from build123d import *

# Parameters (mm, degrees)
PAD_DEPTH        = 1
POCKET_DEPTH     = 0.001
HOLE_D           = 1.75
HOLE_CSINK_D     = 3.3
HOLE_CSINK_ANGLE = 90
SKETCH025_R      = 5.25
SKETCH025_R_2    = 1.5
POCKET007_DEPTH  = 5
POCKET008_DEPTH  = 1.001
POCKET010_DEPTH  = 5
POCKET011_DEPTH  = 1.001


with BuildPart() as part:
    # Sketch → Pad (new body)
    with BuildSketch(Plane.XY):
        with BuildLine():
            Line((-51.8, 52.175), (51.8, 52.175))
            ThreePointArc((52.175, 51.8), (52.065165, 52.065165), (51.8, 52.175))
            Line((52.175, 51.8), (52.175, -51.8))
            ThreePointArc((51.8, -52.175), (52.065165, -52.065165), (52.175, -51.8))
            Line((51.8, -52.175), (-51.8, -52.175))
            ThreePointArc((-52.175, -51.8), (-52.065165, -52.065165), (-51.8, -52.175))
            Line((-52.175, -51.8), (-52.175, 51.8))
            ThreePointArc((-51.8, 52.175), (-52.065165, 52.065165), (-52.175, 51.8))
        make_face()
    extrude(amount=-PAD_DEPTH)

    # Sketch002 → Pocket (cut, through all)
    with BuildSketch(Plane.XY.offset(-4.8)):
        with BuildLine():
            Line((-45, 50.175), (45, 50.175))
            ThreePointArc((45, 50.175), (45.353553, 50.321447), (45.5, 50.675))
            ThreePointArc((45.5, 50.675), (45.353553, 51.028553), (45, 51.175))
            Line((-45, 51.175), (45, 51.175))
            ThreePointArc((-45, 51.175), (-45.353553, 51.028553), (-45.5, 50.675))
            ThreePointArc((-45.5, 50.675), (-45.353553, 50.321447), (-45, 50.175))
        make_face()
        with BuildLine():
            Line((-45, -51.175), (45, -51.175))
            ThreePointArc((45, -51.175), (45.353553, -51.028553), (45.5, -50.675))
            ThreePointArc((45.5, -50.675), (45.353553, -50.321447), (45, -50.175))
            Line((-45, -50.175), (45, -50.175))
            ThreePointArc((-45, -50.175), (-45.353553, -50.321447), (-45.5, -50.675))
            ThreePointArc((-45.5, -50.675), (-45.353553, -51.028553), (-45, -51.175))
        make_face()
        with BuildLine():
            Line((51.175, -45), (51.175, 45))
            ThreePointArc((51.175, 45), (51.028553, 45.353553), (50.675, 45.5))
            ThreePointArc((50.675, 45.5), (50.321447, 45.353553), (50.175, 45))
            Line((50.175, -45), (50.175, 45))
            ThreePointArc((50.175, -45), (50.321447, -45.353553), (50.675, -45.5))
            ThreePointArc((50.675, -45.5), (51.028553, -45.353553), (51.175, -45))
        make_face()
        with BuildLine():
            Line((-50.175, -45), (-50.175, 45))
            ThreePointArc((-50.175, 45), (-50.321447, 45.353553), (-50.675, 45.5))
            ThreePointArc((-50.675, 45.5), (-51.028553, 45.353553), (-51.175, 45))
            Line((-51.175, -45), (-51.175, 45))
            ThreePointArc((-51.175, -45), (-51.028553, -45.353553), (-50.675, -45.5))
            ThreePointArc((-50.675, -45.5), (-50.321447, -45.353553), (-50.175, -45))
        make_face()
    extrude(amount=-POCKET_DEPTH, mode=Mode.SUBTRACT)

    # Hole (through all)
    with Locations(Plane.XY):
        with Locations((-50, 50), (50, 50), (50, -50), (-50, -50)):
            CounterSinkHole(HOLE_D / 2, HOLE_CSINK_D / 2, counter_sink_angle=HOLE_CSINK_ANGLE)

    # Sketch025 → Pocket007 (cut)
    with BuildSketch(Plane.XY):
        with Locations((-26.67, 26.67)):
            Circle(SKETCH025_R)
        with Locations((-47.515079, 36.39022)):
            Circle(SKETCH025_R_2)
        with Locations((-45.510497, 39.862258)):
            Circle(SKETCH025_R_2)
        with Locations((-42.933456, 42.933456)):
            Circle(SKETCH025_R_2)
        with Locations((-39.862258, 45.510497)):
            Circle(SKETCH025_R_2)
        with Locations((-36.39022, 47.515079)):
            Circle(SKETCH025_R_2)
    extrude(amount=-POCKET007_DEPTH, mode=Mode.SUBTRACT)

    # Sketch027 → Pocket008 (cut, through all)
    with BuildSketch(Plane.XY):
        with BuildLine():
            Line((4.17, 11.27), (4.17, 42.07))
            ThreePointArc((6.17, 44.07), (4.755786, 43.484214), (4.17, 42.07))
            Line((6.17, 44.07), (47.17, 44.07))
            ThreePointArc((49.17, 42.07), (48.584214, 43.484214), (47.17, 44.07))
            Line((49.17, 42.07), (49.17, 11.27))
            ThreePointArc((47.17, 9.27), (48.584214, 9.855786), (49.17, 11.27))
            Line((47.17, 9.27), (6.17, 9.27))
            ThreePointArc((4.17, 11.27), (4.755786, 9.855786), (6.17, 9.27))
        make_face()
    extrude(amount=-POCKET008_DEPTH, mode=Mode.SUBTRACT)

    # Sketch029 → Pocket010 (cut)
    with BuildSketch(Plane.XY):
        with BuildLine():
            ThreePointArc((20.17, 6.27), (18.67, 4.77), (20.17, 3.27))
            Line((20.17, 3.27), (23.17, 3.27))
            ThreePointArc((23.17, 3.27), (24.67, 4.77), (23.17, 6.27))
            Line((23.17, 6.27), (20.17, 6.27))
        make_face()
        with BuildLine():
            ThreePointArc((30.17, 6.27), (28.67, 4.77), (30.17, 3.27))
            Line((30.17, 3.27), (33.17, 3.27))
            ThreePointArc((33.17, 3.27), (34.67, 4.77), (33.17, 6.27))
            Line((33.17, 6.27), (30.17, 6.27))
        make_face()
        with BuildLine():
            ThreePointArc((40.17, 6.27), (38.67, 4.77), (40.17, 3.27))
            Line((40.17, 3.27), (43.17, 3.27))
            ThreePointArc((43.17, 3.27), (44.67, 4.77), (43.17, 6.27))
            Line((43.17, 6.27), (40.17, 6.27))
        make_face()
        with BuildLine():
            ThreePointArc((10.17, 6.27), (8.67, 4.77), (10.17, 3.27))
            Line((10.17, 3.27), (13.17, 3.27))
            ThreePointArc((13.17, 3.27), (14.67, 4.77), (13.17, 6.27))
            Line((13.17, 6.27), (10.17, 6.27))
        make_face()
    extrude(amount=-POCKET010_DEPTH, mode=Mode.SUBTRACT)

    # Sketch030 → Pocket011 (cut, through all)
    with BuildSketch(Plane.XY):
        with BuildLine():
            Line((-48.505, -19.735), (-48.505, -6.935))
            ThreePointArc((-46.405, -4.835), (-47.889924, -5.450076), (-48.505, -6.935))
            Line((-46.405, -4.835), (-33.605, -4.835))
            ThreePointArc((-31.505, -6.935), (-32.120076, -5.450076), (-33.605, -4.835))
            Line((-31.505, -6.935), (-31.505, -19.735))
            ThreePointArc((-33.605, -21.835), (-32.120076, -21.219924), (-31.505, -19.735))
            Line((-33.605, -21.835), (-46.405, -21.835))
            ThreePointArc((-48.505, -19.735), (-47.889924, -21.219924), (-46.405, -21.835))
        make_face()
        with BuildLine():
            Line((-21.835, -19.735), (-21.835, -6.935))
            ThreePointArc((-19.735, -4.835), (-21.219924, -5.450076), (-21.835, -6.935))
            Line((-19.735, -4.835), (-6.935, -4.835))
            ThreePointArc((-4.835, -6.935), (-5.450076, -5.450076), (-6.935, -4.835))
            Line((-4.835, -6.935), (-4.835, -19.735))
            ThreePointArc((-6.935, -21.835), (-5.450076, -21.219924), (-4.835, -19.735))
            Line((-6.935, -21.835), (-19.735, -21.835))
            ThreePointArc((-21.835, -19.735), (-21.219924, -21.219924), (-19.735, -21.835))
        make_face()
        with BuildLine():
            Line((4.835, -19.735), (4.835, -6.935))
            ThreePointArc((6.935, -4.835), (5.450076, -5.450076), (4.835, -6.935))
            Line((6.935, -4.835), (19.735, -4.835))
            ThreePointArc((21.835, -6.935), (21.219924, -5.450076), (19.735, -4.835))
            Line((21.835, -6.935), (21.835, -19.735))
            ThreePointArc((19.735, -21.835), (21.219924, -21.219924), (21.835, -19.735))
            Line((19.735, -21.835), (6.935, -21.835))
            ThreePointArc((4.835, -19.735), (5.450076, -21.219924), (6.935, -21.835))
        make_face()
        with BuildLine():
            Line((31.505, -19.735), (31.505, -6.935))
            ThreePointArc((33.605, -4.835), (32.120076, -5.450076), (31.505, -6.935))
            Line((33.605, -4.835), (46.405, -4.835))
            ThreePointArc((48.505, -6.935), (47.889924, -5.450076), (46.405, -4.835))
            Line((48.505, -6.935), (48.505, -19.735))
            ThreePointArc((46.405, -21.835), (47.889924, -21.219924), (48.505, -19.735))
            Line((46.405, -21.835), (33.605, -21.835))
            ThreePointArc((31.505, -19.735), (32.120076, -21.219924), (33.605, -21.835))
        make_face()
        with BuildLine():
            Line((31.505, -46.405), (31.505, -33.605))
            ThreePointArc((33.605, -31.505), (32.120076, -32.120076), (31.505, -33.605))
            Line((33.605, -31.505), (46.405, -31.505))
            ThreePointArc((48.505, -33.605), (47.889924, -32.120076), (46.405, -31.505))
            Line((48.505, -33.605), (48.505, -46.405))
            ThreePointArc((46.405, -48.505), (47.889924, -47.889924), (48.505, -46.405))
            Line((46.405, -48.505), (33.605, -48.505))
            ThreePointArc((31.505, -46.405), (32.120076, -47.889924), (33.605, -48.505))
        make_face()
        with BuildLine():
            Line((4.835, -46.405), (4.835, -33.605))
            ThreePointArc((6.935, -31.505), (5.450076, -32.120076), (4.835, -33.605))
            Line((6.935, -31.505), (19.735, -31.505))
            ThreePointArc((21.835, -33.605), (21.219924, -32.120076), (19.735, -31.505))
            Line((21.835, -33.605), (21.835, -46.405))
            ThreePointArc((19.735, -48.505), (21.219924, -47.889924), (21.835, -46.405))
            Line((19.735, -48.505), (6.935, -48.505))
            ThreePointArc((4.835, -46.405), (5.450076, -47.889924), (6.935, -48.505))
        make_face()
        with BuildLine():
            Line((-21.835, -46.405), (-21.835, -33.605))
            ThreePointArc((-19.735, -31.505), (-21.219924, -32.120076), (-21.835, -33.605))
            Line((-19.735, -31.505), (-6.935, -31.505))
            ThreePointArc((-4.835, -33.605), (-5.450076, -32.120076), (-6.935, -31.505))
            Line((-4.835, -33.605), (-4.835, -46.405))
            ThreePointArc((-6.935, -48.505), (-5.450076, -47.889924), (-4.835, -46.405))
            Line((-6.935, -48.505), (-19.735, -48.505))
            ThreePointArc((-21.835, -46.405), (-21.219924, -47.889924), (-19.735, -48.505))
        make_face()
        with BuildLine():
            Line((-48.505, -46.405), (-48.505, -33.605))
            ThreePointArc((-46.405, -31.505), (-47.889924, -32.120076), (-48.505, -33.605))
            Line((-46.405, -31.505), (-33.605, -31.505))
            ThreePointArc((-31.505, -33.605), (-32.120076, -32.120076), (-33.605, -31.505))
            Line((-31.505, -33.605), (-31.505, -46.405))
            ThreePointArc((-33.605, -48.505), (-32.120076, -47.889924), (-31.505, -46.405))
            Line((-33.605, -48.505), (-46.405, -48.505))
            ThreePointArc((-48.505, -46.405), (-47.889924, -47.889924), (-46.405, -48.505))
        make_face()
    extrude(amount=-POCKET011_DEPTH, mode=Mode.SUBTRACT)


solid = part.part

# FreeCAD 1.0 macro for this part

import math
import FreeCAD as App
import Part
import Sketcher
Q = App.Units.Quantity

doc = App.newDocument("Part")
params = doc.addObject("Spreadsheet::Sheet", "Params")
for row, (alias, value) in enumerate([
    ("sketch1_width", "103.6 mm"),
    ("pad1_length", "1 mm"),
    ("sketch2_radius", "0.500001 mm"),
    ("sketch2_width", "90 mm"),
    ("sketch3_diameter", "1.75 mm"),
    ("hole_diameter", "1.75 mm"),
    ("hole_csink_diameter", "3.3 mm"),
    ("sketch4_diameter", "3 mm"),
    ("sketch4_diameter2", "10.5 mm"),
    ("pocket2_length", "5 mm"),
    ("sketch5_radius", "1.999999 mm"),
    ("sketch5_width", "41 mm"),
    ("sketch5_height", "30.8 mm"),
    ("sketch6_radius", "1.5 mm"),
    ("sketch6_width", "3 mm"),
    ("pocket4_length", "5 mm"),
    ("sketch7_radius", "2.100001 mm"),
    ("sketch7_width", "12.8 mm"),
], start=1):
    params.set(f"A{row}", alias)
    params.set(f"B{row}", "=" + value)
    params.setAlias(f"B{row}", alias)

body = doc.addObject("PartDesign::Body", "Body")

# Sketch on XY plane
sketch1 = body.newObject("Sketcher::SketchObject", "Sketch")
sketch1.AttachmentSupport = (doc.getObject("XY_Plane"), [""])
sketch1.MapMode = "FlatFace"
sketch1.addGeometry([
    Part.LineSegment(App.Vector(51.8, 52.17, 0), App.Vector(-51.8, 52.17, 0)),  # 0
    Part.ArcOfCircle(Part.Circle(App.Vector(-51.8, 51.8, 0), App.Vector(0, 0, 1), 0.38), math.radians(90), math.radians(180)),  # 1
    Part.LineSegment(App.Vector(-52.17, 51.8, 0), App.Vector(-52.17, -51.8, 0)),  # 2
    Part.ArcOfCircle(Part.Circle(App.Vector(-51.8, -51.8, 0), App.Vector(0, 0, 1), 0.38), math.radians(-180), math.radians(-90)),  # 3
    Part.LineSegment(App.Vector(-51.8, -52.17, 0), App.Vector(51.8, -52.17, 0)),  # 4
    Part.ArcOfCircle(Part.Circle(App.Vector(51.8, -51.8, 0), App.Vector(0, 0, 1), 0.38), math.radians(-90), math.radians(0)),  # 5
    Part.LineSegment(App.Vector(52.17, -51.8, 0), App.Vector(52.17, 51.8, 0)),  # 6
    Part.ArcOfCircle(Part.Circle(App.Vector(51.8, 51.8, 0), App.Vector(0, 0, 1), 0.38), math.radians(0), math.radians(90)),  # 7
], False)
sketch1.addConstraint([
    Sketcher.Constraint("Tangent", 0, 2, 1, 1),
    Sketcher.Constraint("Tangent", 1, 2, 2, 1),
    Sketcher.Constraint("Tangent", 2, 2, 3, 1),
    Sketcher.Constraint("Tangent", 3, 2, 4, 1),
    Sketcher.Constraint("Tangent", 4, 2, 5, 1),
    Sketcher.Constraint("Tangent", 5, 2, 6, 1),
    Sketcher.Constraint("Tangent", 6, 2, 7, 1),
    Sketcher.Constraint("Tangent", 7, 2, 0, 1),
    Sketcher.Constraint("Horizontal", 0),
    Sketcher.Constraint("Vertical", 2),
    Sketcher.Constraint("Horizontal", 4),
    Sketcher.Constraint("Vertical", 6),
    Sketcher.Constraint("Equal", 1, 3),
    Sketcher.Constraint("Equal", 3, 5),
    Sketcher.Constraint("Equal", 5, 7),
    Sketcher.Constraint("Symmetric", 1, 3, 5, 3, -1, 1),
    Sketcher.Constraint("Equal", 4, 2),
    Sketcher.Constraint("DistanceX", 0, 2, 0, 1, Q("103.6 mm")),
    Sketcher.Constraint("Radius", 1, Q("0.375 mm")),
])
sketch1.setExpression("Constraints[17]", "Params.sketch1_width")
pad1 = body.newObject("PartDesign::Pad", "Pad")
pad1.Profile = sketch1
pad1.setExpression("Length", "Params.pad1_length")
pad1.Reversed = True

# Sketch on XY plane
sketch2 = body.newObject("Sketcher::SketchObject", "Sketch001")
sketch2.AttachmentSupport = (doc.getObject("XY_Plane"), [""])
sketch2.MapMode = "FlatFace"
sketch2.AttachmentOffset = App.Placement(App.Vector(0, 0, -4.8), App.Rotation())
sketch2.addGeometry([
    Part.LineSegment(App.Vector(-45, 50.2, 0), App.Vector(45, 50.2, 0)),  # 0
    Part.ArcOfCircle(Part.Circle(App.Vector(45, 50.7, 0), App.Vector(0, 0, 1), 0.5), math.radians(-90), math.radians(0)),  # 1
    Part.ArcOfCircle(Part.Circle(App.Vector(45, 50.7, 0), App.Vector(0, 0, 1), 0.5), math.radians(0), math.radians(90)),  # 2
    Part.LineSegment(App.Vector(45, 51.2, 0), App.Vector(-45, 51.2, 0)),  # 3
    Part.ArcOfCircle(Part.Circle(App.Vector(-45, 50.7, 0), App.Vector(0, 0, 1), 0.5), math.radians(90), math.radians(180)),  # 4
    Part.ArcOfCircle(Part.Circle(App.Vector(-45, 50.7, 0), App.Vector(0, 0, 1), 0.5), math.radians(-180), math.radians(-90)),  # 5
    Part.LineSegment(App.Vector(-45, -51.2, 0), App.Vector(45, -51.2, 0)),  # 6
    Part.ArcOfCircle(Part.Circle(App.Vector(45, -50.7, 0), App.Vector(0, 0, 1), 0.5), math.radians(-90), math.radians(0)),  # 7
    Part.ArcOfCircle(Part.Circle(App.Vector(45, -50.7, 0), App.Vector(0, 0, 1), 0.5), math.radians(0), math.radians(90)),  # 8
    Part.LineSegment(App.Vector(45, -50.2, 0), App.Vector(-45, -50.2, 0)),  # 9
    Part.ArcOfCircle(Part.Circle(App.Vector(-45, -50.7, 0), App.Vector(0, 0, 1), 0.5), math.radians(90), math.radians(180)),  # 10
    Part.ArcOfCircle(Part.Circle(App.Vector(-45, -50.7, 0), App.Vector(0, 0, 1), 0.5), math.radians(-180), math.radians(-90)),  # 11
    Part.LineSegment(App.Vector(51.2, -45, 0), App.Vector(51.2, 45, 0)),  # 12
    Part.ArcOfCircle(Part.Circle(App.Vector(50.7, 45, 0), App.Vector(0, 0, 1), 0.5), math.radians(0), math.radians(90)),  # 13
    Part.ArcOfCircle(Part.Circle(App.Vector(50.7, 45, 0), App.Vector(0, 0, 1), 0.5), math.radians(90), math.radians(180)),  # 14
    Part.LineSegment(App.Vector(50.2, 45, 0), App.Vector(50.2, -45, 0)),  # 15
    Part.ArcOfCircle(Part.Circle(App.Vector(50.7, -45, 0), App.Vector(0, 0, 1), 0.5), math.radians(-180), math.radians(-90)),  # 16
    Part.ArcOfCircle(Part.Circle(App.Vector(50.7, -45, 0), App.Vector(0, 0, 1), 0.5), math.radians(-90), math.radians(0)),  # 17
    Part.LineSegment(App.Vector(-50.2, -45, 0), App.Vector(-50.2, 45, 0)),  # 18
    Part.ArcOfCircle(Part.Circle(App.Vector(-50.7, 45, 0), App.Vector(0, 0, 1), 0.5), math.radians(0), math.radians(90)),  # 19
    Part.ArcOfCircle(Part.Circle(App.Vector(-50.7, 45, 0), App.Vector(0, 0, 1), 0.5), math.radians(90), math.radians(180)),  # 20
    Part.LineSegment(App.Vector(-51.2, 45, 0), App.Vector(-51.2, -45, 0)),  # 21
    Part.ArcOfCircle(Part.Circle(App.Vector(-50.7, -45, 0), App.Vector(0, 0, 1), 0.5), math.radians(-180), math.radians(-90)),  # 22
    Part.ArcOfCircle(Part.Circle(App.Vector(-50.7, -45, 0), App.Vector(0, 0, 1), 0.5), math.radians(-90), math.radians(0)),  # 23
], False)
sketch2.addConstraint([
    Sketcher.Constraint("Coincident", 0, 2, 1, 1),
    Sketcher.Constraint("Coincident", 1, 2, 2, 1),
    Sketcher.Constraint("Coincident", 2, 2, 3, 1),
    Sketcher.Constraint("Coincident", 3, 2, 4, 1),
    Sketcher.Constraint("Coincident", 4, 2, 5, 1),
    Sketcher.Constraint("Coincident", 5, 2, 0, 1),
    Sketcher.Constraint("Coincident", 6, 2, 7, 1),
    Sketcher.Constraint("Coincident", 7, 2, 8, 1),
    Sketcher.Constraint("Coincident", 8, 2, 9, 1),
    Sketcher.Constraint("Coincident", 9, 2, 10, 1),
    Sketcher.Constraint("Coincident", 10, 2, 11, 1),
    Sketcher.Constraint("Coincident", 11, 2, 6, 1),
    Sketcher.Constraint("Coincident", 12, 2, 13, 1),
    Sketcher.Constraint("Coincident", 13, 2, 14, 1),
    Sketcher.Constraint("Coincident", 14, 2, 15, 1),
    Sketcher.Constraint("Coincident", 15, 2, 16, 1),
    Sketcher.Constraint("Coincident", 16, 2, 17, 1),
    Sketcher.Constraint("Coincident", 17, 2, 12, 1),
    Sketcher.Constraint("Coincident", 18, 2, 19, 1),
    Sketcher.Constraint("Coincident", 19, 2, 20, 1),
    Sketcher.Constraint("Coincident", 20, 2, 21, 1),
    Sketcher.Constraint("Coincident", 21, 2, 22, 1),
    Sketcher.Constraint("Coincident", 22, 2, 23, 1),
    Sketcher.Constraint("Coincident", 23, 2, 18, 1),
    Sketcher.Constraint("Horizontal", 0),
    Sketcher.Constraint("Horizontal", 3),
    Sketcher.Constraint("Horizontal", 6),
    Sketcher.Constraint("Horizontal", 9),
    Sketcher.Constraint("Vertical", 12),
    Sketcher.Constraint("Vertical", 15),
    Sketcher.Constraint("Vertical", 18),
    Sketcher.Constraint("Vertical", 21),
    Sketcher.Constraint("Coincident", 2, 3, 1, 3),
    Sketcher.Constraint("Coincident", 5, 3, 4, 3),
    Sketcher.Constraint("Coincident", 8, 3, 7, 3),
    Sketcher.Constraint("Coincident", 11, 3, 10, 3),
    Sketcher.Constraint("Coincident", 14, 3, 13, 3),
    Sketcher.Constraint("Coincident", 17, 3, 16, 3),
    Sketcher.Constraint("Coincident", 20, 3, 19, 3),
    Sketcher.Constraint("Coincident", 23, 3, 22, 3),
    Sketcher.Constraint("Equal", 5, 7),
    Sketcher.Constraint("Equal", 11, 13),
    Sketcher.Constraint("Equal", 17, 19),
    Sketcher.Constraint("Symmetric", 4, 3, 7, 3, -1, 1),
    Sketcher.Constraint("Symmetric", 16, 3, 19, 3, -1, 1),
    Sketcher.Constraint("Symmetric", 1, 2, 10, 2, -1, 1),
    Sketcher.Constraint("Symmetric", 13, 2, 22, 2, -1, 1),
    Sketcher.Constraint("Symmetric", 1, 2, 4, 2, -2),
    Sketcher.Constraint("Symmetric", 13, 2, 19, 2, -2),
    Sketcher.Constraint("Horizontal", 5, 3, 1, 2),
    Sketcher.Constraint("Horizontal", 11, 3, 7, 2),
    Sketcher.Constraint("Horizontal", 20, 3, 12, 2),
    Sketcher.Constraint("Horizontal", 12, 2, 14, 2),
    Sketcher.Constraint("Horizontal", 23, 3, 15, 2),
    Sketcher.Constraint("Horizontal", 15, 2, 17, 2),
    Sketcher.Constraint("Horizontal", 14, 2, 18, 2),
    Sketcher.Constraint("Horizontal", 18, 2, 20, 2),
    Sketcher.Constraint("Horizontal", 17, 2, 21, 2),
    Sketcher.Constraint("Horizontal", 21, 2, 23, 2),
    Sketcher.Constraint("Vertical", 8, 3, 0, 2),
    Sketcher.Constraint("Vertical", 0, 2, 2, 2),
    Sketcher.Constraint("Vertical", 11, 3, 3, 2),
    Sketcher.Constraint("Vertical", 3, 2, 5, 2),
    Sketcher.Constraint("Vertical", 2, 2, 6, 2),
    Sketcher.Constraint("Vertical", 6, 2, 8, 2),
    Sketcher.Constraint("Vertical", 5, 2, 9, 2),
    Sketcher.Constraint("Vertical", 9, 2, 11, 2),
    Sketcher.Constraint("Vertical", 17, 3, 13, 2),
    Sketcher.Constraint("Vertical", 13, 2, 16, 2),
    Sketcher.Constraint("Equal", 9, 12),
    Sketcher.Constraint("Radius", 1, Q("0.500001 mm")),
    Sketcher.Constraint("DistanceX", 0, 1, 0, 2, Q("90 mm")),
    Sketcher.Constraint("DistanceY", 7, 3, 1, 3, Q("101.35 mm")),
    Sketcher.Constraint("DistanceX", -1, 1, 13, 3, Q("50.674999 mm")),
])
sketch2.setExpression("Constraints[70]", "Params.sketch2_radius")
sketch2.setExpression("Constraints[71]", "Params.sketch2_width")
pocket1 = body.newObject("PartDesign::Pocket", "Pocket")
pocket1.Profile = sketch2
pocket1.Type = "ThroughAll"

# Sketch on XY plane
sketch3 = body.newObject("Sketcher::SketchObject", "Sketch002")
sketch3.AttachmentSupport = (doc.getObject("XY_Plane"), [""])
sketch3.MapMode = "FlatFace"
sketch3.addGeometry([
    Part.Circle(App.Vector(-50, 50, 0), App.Vector(0, 0, 1), 0.9),
    Part.Circle(App.Vector(50, 50, 0), App.Vector(0, 0, 1), 0.9),
    Part.Circle(App.Vector(50, -50, 0), App.Vector(0, 0, 1), 0.9),
    Part.Circle(App.Vector(-50, -50, 0), App.Vector(0, 0, 1), 0.9),
], False)
sketch3.addConstraint([
    Sketcher.Constraint("Equal", 0, 1),
    Sketcher.Constraint("Equal", 1, 2),
    Sketcher.Constraint("Equal", 2, 3),
    Sketcher.Constraint("Symmetric", 0, 3, 2, 3, -1, 1),
    Sketcher.Constraint("Symmetric", 1, 3, 3, 3, -1, 1),
    Sketcher.Constraint("Symmetric", 0, 3, 1, 3, -2),
    Sketcher.Constraint("Diameter", 0, Q("1.75 mm")),
    Sketcher.Constraint("DistanceX", 0, 3, -1, 1, Q("50 mm")),
    Sketcher.Constraint("DistanceY", -1, 1, 0, 3, Q("50 mm")),
])
sketch3.setExpression("Constraints[6]", "Params.sketch3_diameter")
doc.recompute()
hole = body.newObject("PartDesign::Hole", "Hole")
hole.Profile = sketch3
hole.ThreadType = "None"
hole.setExpression("Diameter", "Params.hole_diameter")
hole.DepthType = "ThroughAll"
hole.HoleCutType = "Countersink"
hole.setExpression("HoleCutDiameter", "Params.hole_csink_diameter")
hole.HoleCutCountersinkAngle = 90

# Sketch on XY plane
sketch4 = body.newObject("Sketcher::SketchObject", "Sketch003")
sketch4.AttachmentSupport = (doc.getObject("XY_Plane"), [""])
sketch4.MapMode = "FlatFace"
sketch4.addGeometry([
    Part.Circle(App.Vector(-26.7, 26.7, 0), App.Vector(0, 0, 1), 5.2),  # 0
    Part.Circle(App.Vector(-47.5, 36.4, 0), App.Vector(0, 0, 1), 1.5),  # 1
    Part.Circle(App.Vector(-45.5, 39.9, 0), App.Vector(0, 0, 1), 1.5),  # 2
    Part.Circle(App.Vector(-42.9, 42.9, 0), App.Vector(0, 0, 1), 1.5),  # 3
    Part.Circle(App.Vector(-39.9, 45.5, 0), App.Vector(0, 0, 1), 1.5),  # 4
    Part.Circle(App.Vector(-36.4, 47.5, 0), App.Vector(0, 0, 1), 1.5),  # 5
], False)
sketch4.addConstraint([
    Sketcher.Constraint("Equal", 1, 2),
    Sketcher.Constraint("Equal", 2, 3),
    Sketcher.Constraint("Equal", 3, 4),
    Sketcher.Constraint("Equal", 4, 5),
    Sketcher.Constraint("Diameter", 1, Q("3 mm")),
    Sketcher.Constraint("Diameter", 0, Q("10.5 mm")),
    Sketcher.Constraint("DistanceX", 0, 3, -1, 1, Q("26.67 mm")),
    Sketcher.Constraint("DistanceY", -1, 1, 0, 3, Q("26.67 mm")),
    Sketcher.Constraint("DistanceY", 2, 3, 3, 3, Q("3.071198 mm")),
    Sketcher.Constraint("DistanceX", 3, 3, 4, 3, Q("3.071198 mm")),
    Sketcher.Constraint("DistanceX", 1, 3, -1, 1, Q("47.515079 mm")),
    Sketcher.Constraint("DistanceY", -1, 1, 1, 3, Q("36.39022 mm")),
    Sketcher.Constraint("DistanceX", 5, 3, -1, 1, Q("36.39022 mm")),
    Sketcher.Constraint("DistanceY", -1, 1, 5, 3, Q("47.515079 mm")),
    Sketcher.Constraint("DistanceX", 1, 3, 2, 3, Q("2.004582 mm")),
    Sketcher.Constraint("DistanceX", 2, 3, 3, 3, Q("2.577041 mm")),
    Sketcher.Constraint("DistanceY", 3, 3, 4, 3, Q("2.577041 mm")),
    Sketcher.Constraint("DistanceY", 4, 3, 5, 3, Q("2.004582 mm")),
])
sketch4.setExpression("Constraints[4]", "Params.sketch4_diameter")
sketch4.setExpression("Constraints[5]", "Params.sketch4_diameter2")
pocket2 = body.newObject("PartDesign::Pocket", "Pocket001")
pocket2.Profile = sketch4
pocket2.setExpression("Length", "Params.pocket2_length")

# Sketch on XY plane
sketch5 = body.newObject("Sketcher::SketchObject", "Sketch004")
sketch5.AttachmentSupport = (doc.getObject("XY_Plane"), [""])
sketch5.MapMode = "FlatFace"
sketch5.addGeometry([
    Part.LineSegment(App.Vector(4.2, 42.1, 0), App.Vector(4.2, 11.3, 0)),  # 0
    Part.ArcOfCircle(Part.Circle(App.Vector(6.2, 11.3, 0), App.Vector(0, 0, 1), 2), math.radians(180), math.radians(270)),  # 1
    Part.LineSegment(App.Vector(6.2, 9.3, 0), App.Vector(47.2, 9.3, 0)),  # 2
    Part.ArcOfCircle(Part.Circle(App.Vector(47.2, 11.3, 0), App.Vector(0, 0, 1), 2), math.radians(-90), math.radians(0)),  # 3
    Part.LineSegment(App.Vector(49.2, 11.3, 0), App.Vector(49.2, 42.1, 0)),  # 4
    Part.ArcOfCircle(Part.Circle(App.Vector(47.2, 42.1, 0), App.Vector(0, 0, 1), 2), math.radians(0), math.radians(90)),  # 5
    Part.LineSegment(App.Vector(47.2, 44.1, 0), App.Vector(6.2, 44.1, 0)),  # 6
    Part.ArcOfCircle(Part.Circle(App.Vector(6.2, 42.1, 0), App.Vector(0, 0, 1), 2), math.radians(90), math.radians(180)),  # 7
], False)
sketch5.addConstraint([
    Sketcher.Constraint("Tangent", 0, 2, 1, 1),
    Sketcher.Constraint("Tangent", 1, 2, 2, 1),
    Sketcher.Constraint("Tangent", 2, 2, 3, 1),
    Sketcher.Constraint("Tangent", 3, 2, 4, 1),
    Sketcher.Constraint("Tangent", 4, 2, 5, 1),
    Sketcher.Constraint("Tangent", 5, 2, 6, 1),
    Sketcher.Constraint("Tangent", 6, 2, 7, 1),
    Sketcher.Constraint("Tangent", 7, 2, 0, 1),
    Sketcher.Constraint("Vertical", 0),
    Sketcher.Constraint("Horizontal", 2),
    Sketcher.Constraint("Vertical", 4),
    Sketcher.Constraint("Horizontal", 6),
    Sketcher.Constraint("Equal", 1, 3),
    Sketcher.Constraint("Equal", 3, 5),
    Sketcher.Constraint("Equal", 5, 7),
    Sketcher.Constraint("Radius", 1, Q("1.999999 mm")),
    Sketcher.Constraint("DistanceX", 2, 1, 2, 2, Q("41 mm")),
    Sketcher.Constraint("DistanceY", 0, 2, 0, 1, Q("30.8 mm")),
    Sketcher.Constraint("DistanceX", -1, 1, 1, 3, Q("6.169999 mm")),
    Sketcher.Constraint("DistanceY", -1, 1, 1, 3, Q("11.269999 mm")),
])
sketch5.setExpression("Constraints[15]", "Params.sketch5_radius")
sketch5.setExpression("Constraints[16]", "Params.sketch5_width")
sketch5.setExpression("Constraints[17]", "Params.sketch5_height")
pocket3 = body.newObject("PartDesign::Pocket", "Pocket002")
pocket3.Profile = sketch5
pocket3.Type = "ThroughAll"

# Sketch on XY plane
sketch6 = body.newObject("Sketcher::SketchObject", "Sketch005")
sketch6.AttachmentSupport = (doc.getObject("XY_Plane"), [""])
sketch6.MapMode = "FlatFace"
sketch6.addGeometry([
    Part.ArcOfCircle(Part.Circle(App.Vector(20.2, 4.8, 0), App.Vector(0, 0, 1), 1.5), math.radians(90), math.radians(270)),  # 0
    Part.LineSegment(App.Vector(20.2, 3.3, 0), App.Vector(23.2, 3.3, 0)),  # 1
    Part.ArcOfCircle(Part.Circle(App.Vector(23.2, 4.8, 0), App.Vector(0, 0, 1), 1.5), math.radians(-90), math.radians(90)),  # 2
    Part.LineSegment(App.Vector(23.2, 6.3, 0), App.Vector(20.2, 6.3, 0)),  # 3
    Part.ArcOfCircle(Part.Circle(App.Vector(30.2, 4.8, 0), App.Vector(0, 0, 1), 1.5), math.radians(90), math.radians(270)),  # 4
    Part.LineSegment(App.Vector(30.2, 3.3, 0), App.Vector(33.2, 3.3, 0)),  # 5
    Part.ArcOfCircle(Part.Circle(App.Vector(33.2, 4.8, 0), App.Vector(0, 0, 1), 1.5), math.radians(-90), math.radians(90)),  # 6
    Part.LineSegment(App.Vector(33.2, 6.3, 0), App.Vector(30.2, 6.3, 0)),  # 7
    Part.ArcOfCircle(Part.Circle(App.Vector(40.2, 4.8, 0), App.Vector(0, 0, 1), 1.5), math.radians(90), math.radians(270)),  # 8
    Part.LineSegment(App.Vector(40.2, 3.3, 0), App.Vector(43.2, 3.3, 0)),  # 9
    Part.ArcOfCircle(Part.Circle(App.Vector(43.2, 4.8, 0), App.Vector(0, 0, 1), 1.5), math.radians(-90), math.radians(90)),  # 10
    Part.LineSegment(App.Vector(43.2, 6.3, 0), App.Vector(40.2, 6.3, 0)),  # 11
    Part.ArcOfCircle(Part.Circle(App.Vector(10.2, 4.8, 0), App.Vector(0, 0, 1), 1.5), math.radians(90), math.radians(270)),  # 12
    Part.LineSegment(App.Vector(10.2, 3.3, 0), App.Vector(13.2, 3.3, 0)),  # 13
    Part.ArcOfCircle(Part.Circle(App.Vector(13.2, 4.8, 0), App.Vector(0, 0, 1), 1.5), math.radians(-90), math.radians(90)),  # 14
    Part.LineSegment(App.Vector(13.2, 6.3, 0), App.Vector(10.2, 6.3, 0)),  # 15
], False)
sketch6.addConstraint([
    Sketcher.Constraint("Tangent", 0, 2, 1, 1),
    Sketcher.Constraint("Tangent", 1, 2, 2, 1),
    Sketcher.Constraint("Tangent", 2, 2, 3, 1),
    Sketcher.Constraint("Tangent", 3, 2, 0, 1),
    Sketcher.Constraint("Tangent", 4, 2, 5, 1),
    Sketcher.Constraint("Tangent", 5, 2, 6, 1),
    Sketcher.Constraint("Tangent", 6, 2, 7, 1),
    Sketcher.Constraint("Tangent", 7, 2, 4, 1),
    Sketcher.Constraint("Tangent", 8, 2, 9, 1),
    Sketcher.Constraint("Tangent", 9, 2, 10, 1),
    Sketcher.Constraint("Tangent", 10, 2, 11, 1),
    Sketcher.Constraint("Tangent", 11, 2, 8, 1),
    Sketcher.Constraint("Tangent", 12, 2, 13, 1),
    Sketcher.Constraint("Tangent", 13, 2, 14, 1),
    Sketcher.Constraint("Tangent", 14, 2, 15, 1),
    Sketcher.Constraint("Tangent", 15, 2, 12, 1),
    Sketcher.Constraint("Horizontal", 1),
    Sketcher.Constraint("Horizontal", 3),
    Sketcher.Constraint("Horizontal", 5),
    Sketcher.Constraint("Horizontal", 7),
    Sketcher.Constraint("Horizontal", 9),
    Sketcher.Constraint("Horizontal", 11),
    Sketcher.Constraint("Horizontal", 13),
    Sketcher.Constraint("Horizontal", 15),
    Sketcher.Constraint("Equal", 2, 4),
    Sketcher.Constraint("Equal", 6, 8),
    Sketcher.Constraint("Equal", 10, 12),
    Sketcher.Constraint("Horizontal", 2, 3, 4, 3),
    Sketcher.Constraint("Horizontal", 6, 3, 8, 3),
    Sketcher.Constraint("Horizontal", 10, 3, 12, 3),
    Sketcher.Constraint("Equal", 3, 5),
    Sketcher.Constraint("Equal", 7, 9),
    Sketcher.Constraint("Equal", 11, 13),
    Sketcher.Constraint("Radius", 0, Q("1.5 mm")),
    Sketcher.Constraint("DistanceX", 1, 1, 1, 2, Q("3 mm")),
    Sketcher.Constraint("DistanceX", 2, 3, 4, 3, Q("7 mm")),
    Sketcher.Constraint("DistanceX", 6, 3, 8, 3, Q("7 mm")),
    Sketcher.Constraint("DistanceX", 12, 3, 0, 3, Q("10 mm")),
    Sketcher.Constraint("DistanceX", -1, 1, 0, 3, Q("20.17 mm")),
    Sketcher.Constraint("DistanceY", -1, 1, 0, 3, Q("4.77 mm")),
])
sketch6.setExpression("Constraints[33]", "Params.sketch6_radius")
sketch6.setExpression("Constraints[34]", "Params.sketch6_width")
pocket4 = body.newObject("PartDesign::Pocket", "Pocket003")
pocket4.Profile = sketch6
pocket4.setExpression("Length", "Params.pocket4_length")

# Sketch on XY plane
sketch7 = body.newObject("Sketcher::SketchObject", "Sketch006")
sketch7.AttachmentSupport = (doc.getObject("XY_Plane"), [""])
sketch7.MapMode = "FlatFace"
sketch7.addGeometry([
    Part.LineSegment(App.Vector(-48.5, -6.9, 0), App.Vector(-48.5, -19.7, 0)),  # 0
    Part.ArcOfCircle(Part.Circle(App.Vector(-46.4, -19.7, 0), App.Vector(0, 0, 1), 2.1), math.radians(-180), math.radians(-90)),  # 1
    Part.LineSegment(App.Vector(-46.4, -21.8, 0), App.Vector(-33.6, -21.8, 0)),  # 2
    Part.ArcOfCircle(Part.Circle(App.Vector(-33.6, -19.7, 0), App.Vector(0, 0, 1), 2.1), math.radians(-90), math.radians(0)),  # 3
    Part.LineSegment(App.Vector(-31.5, -19.7, 0), App.Vector(-31.5, -6.9, 0)),  # 4
    Part.ArcOfCircle(Part.Circle(App.Vector(-33.6, -6.9, 0), App.Vector(0, 0, 1), 2.1), math.radians(0), math.radians(90)),  # 5
    Part.LineSegment(App.Vector(-33.6, -4.8, 0), App.Vector(-46.4, -4.8, 0)),  # 6
    Part.ArcOfCircle(Part.Circle(App.Vector(-46.4, -6.9, 0), App.Vector(0, 0, 1), 2.1), math.radians(90), math.radians(180)),  # 7
    Part.LineSegment(App.Vector(-21.8, -6.9, 0), App.Vector(-21.8, -19.7, 0)),  # 8
    Part.ArcOfCircle(Part.Circle(App.Vector(-19.7, -19.7, 0), App.Vector(0, 0, 1), 2.1), math.radians(-180), math.radians(-90)),  # 9
    Part.LineSegment(App.Vector(-19.7, -21.8, 0), App.Vector(-6.9, -21.8, 0)),  # 10
    Part.ArcOfCircle(Part.Circle(App.Vector(-6.9, -19.7, 0), App.Vector(0, 0, 1), 2.1), math.radians(-90), math.radians(0)),  # 11
    Part.LineSegment(App.Vector(-4.8, -19.7, 0), App.Vector(-4.8, -6.9, 0)),  # 12
    Part.ArcOfCircle(Part.Circle(App.Vector(-6.9, -6.9, 0), App.Vector(0, 0, 1), 2.1), math.radians(0), math.radians(90)),  # 13
    Part.LineSegment(App.Vector(-6.9, -4.8, 0), App.Vector(-19.7, -4.8, 0)),  # 14
    Part.ArcOfCircle(Part.Circle(App.Vector(-19.7, -6.9, 0), App.Vector(0, 0, 1), 2.1), math.radians(90), math.radians(180)),  # 15
    Part.LineSegment(App.Vector(4.8, -6.9, 0), App.Vector(4.8, -19.7, 0)),  # 16
    Part.ArcOfCircle(Part.Circle(App.Vector(6.9, -19.7, 0), App.Vector(0, 0, 1), 2.1), math.radians(-180), math.radians(-90)),  # 17
    Part.LineSegment(App.Vector(6.9, -21.8, 0), App.Vector(19.7, -21.8, 0)),  # 18
    Part.ArcOfCircle(Part.Circle(App.Vector(19.7, -19.7, 0), App.Vector(0, 0, 1), 2.1), math.radians(-90), math.radians(0)),  # 19
    Part.LineSegment(App.Vector(21.8, -19.7, 0), App.Vector(21.8, -6.9, 0)),  # 20
    Part.ArcOfCircle(Part.Circle(App.Vector(19.7, -6.9, 0), App.Vector(0, 0, 1), 2.1), math.radians(0), math.radians(90)),  # 21
    Part.LineSegment(App.Vector(19.7, -4.8, 0), App.Vector(6.9, -4.8, 0)),  # 22
    Part.ArcOfCircle(Part.Circle(App.Vector(6.9, -6.9, 0), App.Vector(0, 0, 1), 2.1), math.radians(90), math.radians(180)),  # 23
    Part.LineSegment(App.Vector(31.5, -6.9, 0), App.Vector(31.5, -19.7, 0)),  # 24
    Part.ArcOfCircle(Part.Circle(App.Vector(33.6, -19.7, 0), App.Vector(0, 0, 1), 2.1), math.radians(-180), math.radians(-90)),  # 25
    Part.LineSegment(App.Vector(33.6, -21.8, 0), App.Vector(46.4, -21.8, 0)),  # 26
    Part.ArcOfCircle(Part.Circle(App.Vector(46.4, -19.7, 0), App.Vector(0, 0, 1), 2.1), math.radians(-90), math.radians(0)),  # 27
    Part.LineSegment(App.Vector(48.5, -19.7, 0), App.Vector(48.5, -6.9, 0)),  # 28
    Part.ArcOfCircle(Part.Circle(App.Vector(46.4, -6.9, 0), App.Vector(0, 0, 1), 2.1), math.radians(0), math.radians(90)),  # 29
    Part.LineSegment(App.Vector(46.4, -4.8, 0), App.Vector(33.6, -4.8, 0)),  # 30
    Part.ArcOfCircle(Part.Circle(App.Vector(33.6, -6.9, 0), App.Vector(0, 0, 1), 2.1), math.radians(90), math.radians(180)),  # 31
    Part.LineSegment(App.Vector(31.5, -33.6, 0), App.Vector(31.5, -46.4, 0)),  # 32
    Part.ArcOfCircle(Part.Circle(App.Vector(33.6, -46.4, 0), App.Vector(0, 0, 1), 2.1), math.radians(-180), math.radians(-90)),  # 33
    Part.LineSegment(App.Vector(33.6, -48.5, 0), App.Vector(46.4, -48.5, 0)),  # 34
    Part.ArcOfCircle(Part.Circle(App.Vector(46.4, -46.4, 0), App.Vector(0, 0, 1), 2.1), math.radians(-90), math.radians(0)),  # 35
    Part.LineSegment(App.Vector(48.5, -46.4, 0), App.Vector(48.5, -33.6, 0)),  # 36
    Part.ArcOfCircle(Part.Circle(App.Vector(46.4, -33.6, 0), App.Vector(0, 0, 1), 2.1), math.radians(0), math.radians(90)),  # 37
    Part.LineSegment(App.Vector(46.4, -31.5, 0), App.Vector(33.6, -31.5, 0)),  # 38
    Part.ArcOfCircle(Part.Circle(App.Vector(33.6, -33.6, 0), App.Vector(0, 0, 1), 2.1), math.radians(90), math.radians(180)),  # 39
    Part.LineSegment(App.Vector(4.8, -33.6, 0), App.Vector(4.8, -46.4, 0)),  # 40
    Part.ArcOfCircle(Part.Circle(App.Vector(6.9, -46.4, 0), App.Vector(0, 0, 1), 2.1), math.radians(-180), math.radians(-90)),  # 41
    Part.LineSegment(App.Vector(6.9, -48.5, 0), App.Vector(19.7, -48.5, 0)),  # 42
    Part.ArcOfCircle(Part.Circle(App.Vector(19.7, -46.4, 0), App.Vector(0, 0, 1), 2.1), math.radians(-90), math.radians(0)),  # 43
    Part.LineSegment(App.Vector(21.8, -46.4, 0), App.Vector(21.8, -33.6, 0)),  # 44
    Part.ArcOfCircle(Part.Circle(App.Vector(19.7, -33.6, 0), App.Vector(0, 0, 1), 2.1), math.radians(0), math.radians(90)),  # 45
    Part.LineSegment(App.Vector(19.7, -31.5, 0), App.Vector(6.9, -31.5, 0)),  # 46
    Part.ArcOfCircle(Part.Circle(App.Vector(6.9, -33.6, 0), App.Vector(0, 0, 1), 2.1), math.radians(90), math.radians(180)),  # 47
    Part.LineSegment(App.Vector(-21.8, -33.6, 0), App.Vector(-21.8, -46.4, 0)),  # 48
    Part.ArcOfCircle(Part.Circle(App.Vector(-19.7, -46.4, 0), App.Vector(0, 0, 1), 2.1), math.radians(-180), math.radians(-90)),  # 49
    Part.LineSegment(App.Vector(-19.7, -48.5, 0), App.Vector(-6.9, -48.5, 0)),  # 50
    Part.ArcOfCircle(Part.Circle(App.Vector(-6.9, -46.4, 0), App.Vector(0, 0, 1), 2.1), math.radians(-90), math.radians(0)),  # 51
    Part.LineSegment(App.Vector(-4.8, -46.4, 0), App.Vector(-4.8, -33.6, 0)),  # 52
    Part.ArcOfCircle(Part.Circle(App.Vector(-6.9, -33.6, 0), App.Vector(0, 0, 1), 2.1), math.radians(0), math.radians(90)),  # 53
    Part.LineSegment(App.Vector(-6.9, -31.5, 0), App.Vector(-19.7, -31.5, 0)),  # 54
    Part.ArcOfCircle(Part.Circle(App.Vector(-19.7, -33.6, 0), App.Vector(0, 0, 1), 2.1), math.radians(90), math.radians(180)),  # 55
    Part.LineSegment(App.Vector(-48.5, -33.6, 0), App.Vector(-48.5, -46.4, 0)),  # 56
    Part.ArcOfCircle(Part.Circle(App.Vector(-46.4, -46.4, 0), App.Vector(0, 0, 1), 2.1), math.radians(-180), math.radians(-90)),  # 57
    Part.LineSegment(App.Vector(-46.4, -48.5, 0), App.Vector(-33.6, -48.5, 0)),  # 58
    Part.ArcOfCircle(Part.Circle(App.Vector(-33.6, -46.4, 0), App.Vector(0, 0, 1), 2.1), math.radians(-90), math.radians(0)),  # 59
    Part.LineSegment(App.Vector(-31.5, -46.4, 0), App.Vector(-31.5, -33.6, 0)),  # 60
    Part.ArcOfCircle(Part.Circle(App.Vector(-33.6, -33.6, 0), App.Vector(0, 0, 1), 2.1), math.radians(0), math.radians(90)),  # 61
    Part.LineSegment(App.Vector(-33.6, -31.5, 0), App.Vector(-46.4, -31.5, 0)),  # 62
    Part.ArcOfCircle(Part.Circle(App.Vector(-46.4, -33.6, 0), App.Vector(0, 0, 1), 2.1), math.radians(90), math.radians(180)),  # 63
], False)
sketch7.addConstraint([
    Sketcher.Constraint("Tangent", 0, 2, 1, 1),
    Sketcher.Constraint("Tangent", 1, 2, 2, 1),
    Sketcher.Constraint("Tangent", 2, 2, 3, 1),
    Sketcher.Constraint("Tangent", 3, 2, 4, 1),
    Sketcher.Constraint("Tangent", 4, 2, 5, 1),
    Sketcher.Constraint("Tangent", 5, 2, 6, 1),
    Sketcher.Constraint("Tangent", 6, 2, 7, 1),
    Sketcher.Constraint("Tangent", 7, 2, 0, 1),
    Sketcher.Constraint("Tangent", 8, 2, 9, 1),
    Sketcher.Constraint("Tangent", 9, 2, 10, 1),
    Sketcher.Constraint("Tangent", 10, 2, 11, 1),
    Sketcher.Constraint("Tangent", 11, 2, 12, 1),
    Sketcher.Constraint("Tangent", 12, 2, 13, 1),
    Sketcher.Constraint("Tangent", 13, 2, 14, 1),
    Sketcher.Constraint("Tangent", 14, 2, 15, 1),
    Sketcher.Constraint("Tangent", 15, 2, 8, 1),
    Sketcher.Constraint("Tangent", 16, 2, 17, 1),
    Sketcher.Constraint("Tangent", 17, 2, 18, 1),
    Sketcher.Constraint("Tangent", 18, 2, 19, 1),
    Sketcher.Constraint("Tangent", 19, 2, 20, 1),
    Sketcher.Constraint("Tangent", 20, 2, 21, 1),
    Sketcher.Constraint("Tangent", 21, 2, 22, 1),
    Sketcher.Constraint("Tangent", 22, 2, 23, 1),
    Sketcher.Constraint("Tangent", 23, 2, 16, 1),
    Sketcher.Constraint("Tangent", 24, 2, 25, 1),
    Sketcher.Constraint("Tangent", 25, 2, 26, 1),
    Sketcher.Constraint("Tangent", 26, 2, 27, 1),
    Sketcher.Constraint("Tangent", 27, 2, 28, 1),
    Sketcher.Constraint("Tangent", 28, 2, 29, 1),
    Sketcher.Constraint("Tangent", 29, 2, 30, 1),
    Sketcher.Constraint("Tangent", 30, 2, 31, 1),
    Sketcher.Constraint("Tangent", 31, 2, 24, 1),
    Sketcher.Constraint("Tangent", 32, 2, 33, 1),
    Sketcher.Constraint("Tangent", 33, 2, 34, 1),
    Sketcher.Constraint("Tangent", 34, 2, 35, 1),
    Sketcher.Constraint("Tangent", 35, 2, 36, 1),
    Sketcher.Constraint("Tangent", 36, 2, 37, 1),
    Sketcher.Constraint("Tangent", 37, 2, 38, 1),
    Sketcher.Constraint("Tangent", 38, 2, 39, 1),
    Sketcher.Constraint("Tangent", 39, 2, 32, 1),
    Sketcher.Constraint("Tangent", 40, 2, 41, 1),
    Sketcher.Constraint("Tangent", 41, 2, 42, 1),
    Sketcher.Constraint("Tangent", 42, 2, 43, 1),
    Sketcher.Constraint("Tangent", 43, 2, 44, 1),
    Sketcher.Constraint("Tangent", 44, 2, 45, 1),
    Sketcher.Constraint("Tangent", 45, 2, 46, 1),
    Sketcher.Constraint("Tangent", 46, 2, 47, 1),
    Sketcher.Constraint("Tangent", 47, 2, 40, 1),
    Sketcher.Constraint("Tangent", 48, 2, 49, 1),
    Sketcher.Constraint("Tangent", 49, 2, 50, 1),
    Sketcher.Constraint("Tangent", 50, 2, 51, 1),
    Sketcher.Constraint("Tangent", 51, 2, 52, 1),
    Sketcher.Constraint("Tangent", 52, 2, 53, 1),
    Sketcher.Constraint("Tangent", 53, 2, 54, 1),
    Sketcher.Constraint("Tangent", 54, 2, 55, 1),
    Sketcher.Constraint("Tangent", 55, 2, 48, 1),
    Sketcher.Constraint("Tangent", 56, 2, 57, 1),
    Sketcher.Constraint("Tangent", 57, 2, 58, 1),
    Sketcher.Constraint("Tangent", 58, 2, 59, 1),
    Sketcher.Constraint("Tangent", 59, 2, 60, 1),
    Sketcher.Constraint("Tangent", 60, 2, 61, 1),
    Sketcher.Constraint("Tangent", 61, 2, 62, 1),
    Sketcher.Constraint("Tangent", 62, 2, 63, 1),
    Sketcher.Constraint("Tangent", 63, 2, 56, 1),
    Sketcher.Constraint("Vertical", 0),
    Sketcher.Constraint("Horizontal", 2),
    Sketcher.Constraint("Vertical", 4),
    Sketcher.Constraint("Horizontal", 6),
    Sketcher.Constraint("Vertical", 8),
    Sketcher.Constraint("Horizontal", 10),
    Sketcher.Constraint("Vertical", 12),
    Sketcher.Constraint("Horizontal", 14),
    Sketcher.Constraint("Vertical", 16),
    Sketcher.Constraint("Horizontal", 18),
    Sketcher.Constraint("Vertical", 20),
    Sketcher.Constraint("Horizontal", 22),
    Sketcher.Constraint("Vertical", 24),
    Sketcher.Constraint("Horizontal", 26),
    Sketcher.Constraint("Vertical", 28),
    Sketcher.Constraint("Horizontal", 30),
    Sketcher.Constraint("Vertical", 32),
    Sketcher.Constraint("Horizontal", 34),
    Sketcher.Constraint("Vertical", 36),
    Sketcher.Constraint("Horizontal", 38),
    Sketcher.Constraint("Vertical", 40),
    Sketcher.Constraint("Horizontal", 42),
    Sketcher.Constraint("Vertical", 44),
    Sketcher.Constraint("Horizontal", 46),
    Sketcher.Constraint("Vertical", 48),
    Sketcher.Constraint("Horizontal", 50),
    Sketcher.Constraint("Vertical", 52),
    Sketcher.Constraint("Horizontal", 54),
    Sketcher.Constraint("Vertical", 56),
    Sketcher.Constraint("Horizontal", 58),
    Sketcher.Constraint("Vertical", 60),
    Sketcher.Constraint("Horizontal", 62),
    Sketcher.Constraint("Equal", 1, 3),
    Sketcher.Constraint("Equal", 3, 5),
    Sketcher.Constraint("Equal", 5, 7),
    Sketcher.Constraint("Equal", 7, 9),
    Sketcher.Constraint("Equal", 9, 11),
    Sketcher.Constraint("Equal", 11, 13),
    Sketcher.Constraint("Equal", 13, 15),
    Sketcher.Constraint("Equal", 15, 17),
    Sketcher.Constraint("Equal", 17, 19),
    Sketcher.Constraint("Equal", 19, 21),
    Sketcher.Constraint("Equal", 21, 23),
    Sketcher.Constraint("Equal", 23, 25),
    Sketcher.Constraint("Equal", 25, 27),
    Sketcher.Constraint("Equal", 27, 29),
    Sketcher.Constraint("Equal", 29, 31),
    Sketcher.Constraint("Equal", 31, 33),
    Sketcher.Constraint("Equal", 33, 35),
    Sketcher.Constraint("Equal", 35, 37),
    Sketcher.Constraint("Equal", 37, 39),
    Sketcher.Constraint("Equal", 39, 41),
    Sketcher.Constraint("Equal", 41, 43),
    Sketcher.Constraint("Equal", 43, 45),
    Sketcher.Constraint("Equal", 45, 47),
    Sketcher.Constraint("Equal", 47, 49),
    Sketcher.Constraint("Equal", 49, 51),
    Sketcher.Constraint("Equal", 51, 53),
    Sketcher.Constraint("Equal", 53, 55),
    Sketcher.Constraint("Equal", 55, 57),
    Sketcher.Constraint("Equal", 57, 59),
    Sketcher.Constraint("Equal", 59, 61),
    Sketcher.Constraint("Equal", 61, 63),
    Sketcher.Constraint("Symmetric", 11, 3, 17, 3, -2),
    Sketcher.Constraint("Symmetric", 15, 3, 21, 3, -2),
    Sketcher.Constraint("Symmetric", 3, 3, 25, 3, -2),
    Sketcher.Constraint("Symmetric", 7, 3, 29, 3, -2),
    Sketcher.Constraint("Symmetric", 43, 3, 49, 3, -2),
    Sketcher.Constraint("Symmetric", 47, 3, 53, 3, -2),
    Sketcher.Constraint("Symmetric", 35, 3, 57, 3, -2),
    Sketcher.Constraint("Symmetric", 39, 3, 61, 3, -2),
    Sketcher.Constraint("Horizontal", 3, 3, 9, 3),
    Sketcher.Constraint("Horizontal", 7, 3, 13, 3),
    Sketcher.Constraint("Horizontal", 35, 3, 41, 3),
    Sketcher.Constraint("Horizontal", 39, 3, 45, 3),
    Sketcher.Constraint("Vertical", 31, 3, 33, 3),
    Sketcher.Constraint("Vertical", 29, 3, 35, 3),
    Sketcher.Constraint("Vertical", 23, 3, 41, 3),
    Sketcher.Constraint("Vertical", 21, 3, 43, 3),
    Sketcher.Constraint("Equal", 6, 10),
    Sketcher.Constraint("Equal", 62, 0),
    Sketcher.Constraint("Equal", 28, 32),
    Sketcher.Constraint("Radius", 1, Q("2.100001 mm")),
    Sketcher.Constraint("DistanceX", 2, 1, 2, 2, Q("12.8 mm")),
    Sketcher.Constraint("DistanceX", 1, 3, -1, 1, Q("46.404999 mm")),
    Sketcher.Constraint("DistanceY", 1, 3, -1, 1, Q("19.734999 mm")),
    Sketcher.Constraint("DistanceX", 9, 3, -1, 1, Q("19.734999 mm")),
    Sketcher.Constraint("DistanceY", 33, 3, -1, 1, Q("46.404999 mm")),
])
sketch7.setExpression("Constraints[146]", "Params.sketch7_radius")
sketch7.setExpression("Constraints[147]", "Params.sketch7_width")
pocket5 = body.newObject("PartDesign::Pocket", "Pocket004")
pocket5.Profile = sketch7
pocket5.Type = "ThroughAll"

doc.recompute()
